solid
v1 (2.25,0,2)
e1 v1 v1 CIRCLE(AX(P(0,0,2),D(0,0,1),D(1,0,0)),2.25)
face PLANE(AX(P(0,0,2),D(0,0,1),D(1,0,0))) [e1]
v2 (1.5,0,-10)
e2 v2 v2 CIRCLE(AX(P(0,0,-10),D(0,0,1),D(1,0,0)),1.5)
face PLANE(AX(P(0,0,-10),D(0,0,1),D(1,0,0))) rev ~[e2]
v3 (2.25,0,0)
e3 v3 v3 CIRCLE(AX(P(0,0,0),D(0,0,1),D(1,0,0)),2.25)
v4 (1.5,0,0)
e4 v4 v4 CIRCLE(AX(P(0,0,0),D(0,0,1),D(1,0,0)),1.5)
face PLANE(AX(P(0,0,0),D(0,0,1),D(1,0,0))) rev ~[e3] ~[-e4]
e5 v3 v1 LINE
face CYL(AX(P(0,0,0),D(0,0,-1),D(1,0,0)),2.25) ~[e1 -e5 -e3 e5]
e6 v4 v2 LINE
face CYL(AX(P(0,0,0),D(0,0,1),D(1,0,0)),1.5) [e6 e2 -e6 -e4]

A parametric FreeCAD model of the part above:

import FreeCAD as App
import Part
import Sketcher
from FreeCAD import Vector
Q = App.Units.Quantity

doc = App.newDocument("Part")
body = doc.addObject("PartDesign::Body", "Body")

sketch1 = body.newObject("Sketcher::SketchObject", "Sketch")
sketch1.AttachmentSupport = (doc.getObject("XY_Plane"), [""])
sketch1.MapMode = "FlatFace"
sketch1.addGeometry(Part.Circle(Vector(0, 0, 0), Vector(0, 0, 1), 2.2), False)
sketch1.addConstraint([
    Sketcher.Constraint("Coincident", 0, 3, -1, 1),
    Sketcher.Constraint("Diameter", 0, Q("4.5 mm")),
])
pad1 = body.newObject("PartDesign::Pad", "Pad")
pad1.Profile = sketch1
pad1.Length = 2

sketch2 = body.newObject("Sketcher::SketchObject", "Sketch001")
sketch2.AttachmentSupport = (doc.getObject("XY_Plane"), [""])
sketch2.MapMode = "FlatFace"
sketch2.addGeometry(Part.Circle(Vector(0, 0, 0), Vector(0, 0, 1), 1.5), False)
sketch2.addConstraint([
    Sketcher.Constraint("Coincident", 0, 3, -1, 1),
    Sketcher.Constraint("Diameter", 0, Q("3 mm")),
])
pad2 = body.newObject("PartDesign::Pad", "Pad001")
pad2.Profile = sketch2
pad2.Length = 10
pad2.Reversed = True

doc.recompute()
